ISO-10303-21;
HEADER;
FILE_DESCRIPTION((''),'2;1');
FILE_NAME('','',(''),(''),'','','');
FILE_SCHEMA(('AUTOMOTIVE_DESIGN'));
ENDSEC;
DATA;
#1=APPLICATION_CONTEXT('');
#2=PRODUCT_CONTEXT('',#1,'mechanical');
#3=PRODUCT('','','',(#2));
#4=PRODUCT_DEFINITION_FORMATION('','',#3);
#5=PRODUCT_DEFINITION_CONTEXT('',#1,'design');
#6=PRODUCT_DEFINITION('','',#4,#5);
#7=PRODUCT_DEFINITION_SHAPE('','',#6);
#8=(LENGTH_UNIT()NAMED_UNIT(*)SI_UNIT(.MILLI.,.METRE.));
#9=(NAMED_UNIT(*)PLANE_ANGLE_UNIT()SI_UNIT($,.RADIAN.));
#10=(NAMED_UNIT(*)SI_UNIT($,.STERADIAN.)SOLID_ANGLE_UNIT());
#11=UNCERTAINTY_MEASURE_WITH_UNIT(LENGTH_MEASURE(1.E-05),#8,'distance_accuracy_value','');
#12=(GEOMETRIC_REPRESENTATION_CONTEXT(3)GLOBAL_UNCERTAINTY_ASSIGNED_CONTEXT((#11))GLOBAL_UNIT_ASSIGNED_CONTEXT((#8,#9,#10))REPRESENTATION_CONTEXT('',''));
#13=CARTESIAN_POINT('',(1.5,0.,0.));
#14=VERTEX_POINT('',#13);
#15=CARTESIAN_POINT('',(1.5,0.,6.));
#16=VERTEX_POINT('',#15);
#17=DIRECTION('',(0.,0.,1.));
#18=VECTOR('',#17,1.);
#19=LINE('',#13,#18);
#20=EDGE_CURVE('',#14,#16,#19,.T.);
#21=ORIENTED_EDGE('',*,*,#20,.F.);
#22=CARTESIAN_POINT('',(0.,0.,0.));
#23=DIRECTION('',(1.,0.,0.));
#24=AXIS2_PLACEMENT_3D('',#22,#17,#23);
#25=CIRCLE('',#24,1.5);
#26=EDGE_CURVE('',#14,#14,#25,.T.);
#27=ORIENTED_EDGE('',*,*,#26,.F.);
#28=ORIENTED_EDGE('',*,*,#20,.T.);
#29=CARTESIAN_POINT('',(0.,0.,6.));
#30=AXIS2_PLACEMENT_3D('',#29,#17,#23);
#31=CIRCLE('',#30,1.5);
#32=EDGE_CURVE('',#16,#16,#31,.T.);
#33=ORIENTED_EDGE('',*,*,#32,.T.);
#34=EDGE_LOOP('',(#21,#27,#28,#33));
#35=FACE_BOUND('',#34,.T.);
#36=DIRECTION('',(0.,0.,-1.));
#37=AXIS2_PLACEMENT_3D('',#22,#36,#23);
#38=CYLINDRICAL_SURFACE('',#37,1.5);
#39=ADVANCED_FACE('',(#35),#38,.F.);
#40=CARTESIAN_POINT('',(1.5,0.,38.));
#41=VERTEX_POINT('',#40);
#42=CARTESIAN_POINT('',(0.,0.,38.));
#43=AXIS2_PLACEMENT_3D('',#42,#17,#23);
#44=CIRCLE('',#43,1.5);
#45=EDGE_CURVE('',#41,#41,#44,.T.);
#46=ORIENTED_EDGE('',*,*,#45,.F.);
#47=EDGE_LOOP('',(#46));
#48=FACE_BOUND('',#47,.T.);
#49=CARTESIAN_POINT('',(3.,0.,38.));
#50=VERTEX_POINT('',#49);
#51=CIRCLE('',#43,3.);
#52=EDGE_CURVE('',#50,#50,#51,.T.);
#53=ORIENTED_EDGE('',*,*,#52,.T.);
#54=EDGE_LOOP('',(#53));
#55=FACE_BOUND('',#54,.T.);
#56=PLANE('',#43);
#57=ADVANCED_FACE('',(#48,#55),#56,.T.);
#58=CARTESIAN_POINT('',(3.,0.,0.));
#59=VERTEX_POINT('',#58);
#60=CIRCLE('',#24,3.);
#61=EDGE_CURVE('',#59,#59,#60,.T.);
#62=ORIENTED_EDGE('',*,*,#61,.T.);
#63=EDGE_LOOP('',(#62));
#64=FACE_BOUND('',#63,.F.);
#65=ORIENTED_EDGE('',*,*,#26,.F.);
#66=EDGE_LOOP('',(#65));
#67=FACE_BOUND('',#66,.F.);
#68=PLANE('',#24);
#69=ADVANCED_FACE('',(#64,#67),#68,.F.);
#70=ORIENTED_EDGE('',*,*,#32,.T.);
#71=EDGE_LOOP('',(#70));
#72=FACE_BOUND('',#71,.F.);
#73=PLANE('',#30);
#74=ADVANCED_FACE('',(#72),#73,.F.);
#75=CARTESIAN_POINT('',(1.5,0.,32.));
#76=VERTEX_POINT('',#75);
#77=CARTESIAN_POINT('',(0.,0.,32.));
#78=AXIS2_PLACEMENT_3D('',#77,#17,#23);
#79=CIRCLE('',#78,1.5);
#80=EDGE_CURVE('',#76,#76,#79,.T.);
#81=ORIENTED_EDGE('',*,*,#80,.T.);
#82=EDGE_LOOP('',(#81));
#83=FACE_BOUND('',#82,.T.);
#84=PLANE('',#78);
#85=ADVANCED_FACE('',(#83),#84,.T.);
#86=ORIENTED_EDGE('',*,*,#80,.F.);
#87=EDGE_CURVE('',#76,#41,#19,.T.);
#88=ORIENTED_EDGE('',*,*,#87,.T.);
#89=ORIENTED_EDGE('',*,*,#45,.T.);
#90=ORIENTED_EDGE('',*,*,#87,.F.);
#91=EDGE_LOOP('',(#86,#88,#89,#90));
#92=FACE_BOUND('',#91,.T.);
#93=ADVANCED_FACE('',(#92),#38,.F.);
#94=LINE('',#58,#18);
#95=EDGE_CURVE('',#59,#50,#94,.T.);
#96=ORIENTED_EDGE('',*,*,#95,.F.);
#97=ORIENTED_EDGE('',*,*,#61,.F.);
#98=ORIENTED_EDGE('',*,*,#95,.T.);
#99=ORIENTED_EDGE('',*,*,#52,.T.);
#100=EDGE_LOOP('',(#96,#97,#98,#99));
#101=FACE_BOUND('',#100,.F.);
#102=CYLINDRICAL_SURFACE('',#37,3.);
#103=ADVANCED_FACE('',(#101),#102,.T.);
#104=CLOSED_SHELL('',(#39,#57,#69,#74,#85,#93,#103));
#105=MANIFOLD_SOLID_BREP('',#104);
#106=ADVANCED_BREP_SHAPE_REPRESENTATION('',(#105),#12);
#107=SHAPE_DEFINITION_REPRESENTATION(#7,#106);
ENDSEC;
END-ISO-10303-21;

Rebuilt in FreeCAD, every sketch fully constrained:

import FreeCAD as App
import Part
import Sketcher

V = App.Vector

doc = App.newDocument("Part")
body = doc.addObject("PartDesign::Body", "Body")

# Sketch on XY plane
sketch1 = doc.addObject("Sketcher::SketchObject", "Sketch")
body.addObject(sketch1)
sketch1.AttachmentSupport = (doc.XY_Plane, [""])
sketch1.MapMode = "FlatFace"
sketch1.addGeometry([
    Part.Circle(V(0, 0, 0), V(0, 0, 1), 3),
    Part.Circle(V(0, 0, 0), V(0, 0, 1), 1.5),
], False)
sketch1.addConstraint([
    Sketcher.Constraint("Coincident", 0, 3, -1, 1),
    Sketcher.Constraint("Coincident", 1, 3, -1, 1),
    Sketcher.Constraint("Diameter", 0, 6.0),
    Sketcher.Constraint("Diameter", 1, 3.0),
])
pad1 = doc.addObject("PartDesign::Pad", "Pad")
body.addObject(pad1)
pad1.Profile = sketch1
pad1.Length = 38

# Sketch on XY plane
sketch2 = doc.addObject("Sketcher::SketchObject", "Sketch001")
body.addObject(sketch2)
sketch2.AttachmentSupport = (doc.XY_Plane, [""])
sketch2.MapMode = "FlatFace"
sketch2.AttachmentOffset = App.Placement(V(0, 0, 32), App.Rotation())
sketch2.addGeometry(Part.Circle(V(0, 0, 0), V(0, 0, 1), 1.5), False)
sketch2.addConstraint([
    Sketcher.Constraint("Coincident", 0, 3, -1, 1),
    Sketcher.Constraint("Diameter", 0, 3.0),
])
pad2 = doc.addObject("PartDesign::Pad", "Pad001")
body.addObject(pad2)
pad2.Profile = sketch2
pad2.Length = 26
pad2.Reversed = True

doc.recompute()
